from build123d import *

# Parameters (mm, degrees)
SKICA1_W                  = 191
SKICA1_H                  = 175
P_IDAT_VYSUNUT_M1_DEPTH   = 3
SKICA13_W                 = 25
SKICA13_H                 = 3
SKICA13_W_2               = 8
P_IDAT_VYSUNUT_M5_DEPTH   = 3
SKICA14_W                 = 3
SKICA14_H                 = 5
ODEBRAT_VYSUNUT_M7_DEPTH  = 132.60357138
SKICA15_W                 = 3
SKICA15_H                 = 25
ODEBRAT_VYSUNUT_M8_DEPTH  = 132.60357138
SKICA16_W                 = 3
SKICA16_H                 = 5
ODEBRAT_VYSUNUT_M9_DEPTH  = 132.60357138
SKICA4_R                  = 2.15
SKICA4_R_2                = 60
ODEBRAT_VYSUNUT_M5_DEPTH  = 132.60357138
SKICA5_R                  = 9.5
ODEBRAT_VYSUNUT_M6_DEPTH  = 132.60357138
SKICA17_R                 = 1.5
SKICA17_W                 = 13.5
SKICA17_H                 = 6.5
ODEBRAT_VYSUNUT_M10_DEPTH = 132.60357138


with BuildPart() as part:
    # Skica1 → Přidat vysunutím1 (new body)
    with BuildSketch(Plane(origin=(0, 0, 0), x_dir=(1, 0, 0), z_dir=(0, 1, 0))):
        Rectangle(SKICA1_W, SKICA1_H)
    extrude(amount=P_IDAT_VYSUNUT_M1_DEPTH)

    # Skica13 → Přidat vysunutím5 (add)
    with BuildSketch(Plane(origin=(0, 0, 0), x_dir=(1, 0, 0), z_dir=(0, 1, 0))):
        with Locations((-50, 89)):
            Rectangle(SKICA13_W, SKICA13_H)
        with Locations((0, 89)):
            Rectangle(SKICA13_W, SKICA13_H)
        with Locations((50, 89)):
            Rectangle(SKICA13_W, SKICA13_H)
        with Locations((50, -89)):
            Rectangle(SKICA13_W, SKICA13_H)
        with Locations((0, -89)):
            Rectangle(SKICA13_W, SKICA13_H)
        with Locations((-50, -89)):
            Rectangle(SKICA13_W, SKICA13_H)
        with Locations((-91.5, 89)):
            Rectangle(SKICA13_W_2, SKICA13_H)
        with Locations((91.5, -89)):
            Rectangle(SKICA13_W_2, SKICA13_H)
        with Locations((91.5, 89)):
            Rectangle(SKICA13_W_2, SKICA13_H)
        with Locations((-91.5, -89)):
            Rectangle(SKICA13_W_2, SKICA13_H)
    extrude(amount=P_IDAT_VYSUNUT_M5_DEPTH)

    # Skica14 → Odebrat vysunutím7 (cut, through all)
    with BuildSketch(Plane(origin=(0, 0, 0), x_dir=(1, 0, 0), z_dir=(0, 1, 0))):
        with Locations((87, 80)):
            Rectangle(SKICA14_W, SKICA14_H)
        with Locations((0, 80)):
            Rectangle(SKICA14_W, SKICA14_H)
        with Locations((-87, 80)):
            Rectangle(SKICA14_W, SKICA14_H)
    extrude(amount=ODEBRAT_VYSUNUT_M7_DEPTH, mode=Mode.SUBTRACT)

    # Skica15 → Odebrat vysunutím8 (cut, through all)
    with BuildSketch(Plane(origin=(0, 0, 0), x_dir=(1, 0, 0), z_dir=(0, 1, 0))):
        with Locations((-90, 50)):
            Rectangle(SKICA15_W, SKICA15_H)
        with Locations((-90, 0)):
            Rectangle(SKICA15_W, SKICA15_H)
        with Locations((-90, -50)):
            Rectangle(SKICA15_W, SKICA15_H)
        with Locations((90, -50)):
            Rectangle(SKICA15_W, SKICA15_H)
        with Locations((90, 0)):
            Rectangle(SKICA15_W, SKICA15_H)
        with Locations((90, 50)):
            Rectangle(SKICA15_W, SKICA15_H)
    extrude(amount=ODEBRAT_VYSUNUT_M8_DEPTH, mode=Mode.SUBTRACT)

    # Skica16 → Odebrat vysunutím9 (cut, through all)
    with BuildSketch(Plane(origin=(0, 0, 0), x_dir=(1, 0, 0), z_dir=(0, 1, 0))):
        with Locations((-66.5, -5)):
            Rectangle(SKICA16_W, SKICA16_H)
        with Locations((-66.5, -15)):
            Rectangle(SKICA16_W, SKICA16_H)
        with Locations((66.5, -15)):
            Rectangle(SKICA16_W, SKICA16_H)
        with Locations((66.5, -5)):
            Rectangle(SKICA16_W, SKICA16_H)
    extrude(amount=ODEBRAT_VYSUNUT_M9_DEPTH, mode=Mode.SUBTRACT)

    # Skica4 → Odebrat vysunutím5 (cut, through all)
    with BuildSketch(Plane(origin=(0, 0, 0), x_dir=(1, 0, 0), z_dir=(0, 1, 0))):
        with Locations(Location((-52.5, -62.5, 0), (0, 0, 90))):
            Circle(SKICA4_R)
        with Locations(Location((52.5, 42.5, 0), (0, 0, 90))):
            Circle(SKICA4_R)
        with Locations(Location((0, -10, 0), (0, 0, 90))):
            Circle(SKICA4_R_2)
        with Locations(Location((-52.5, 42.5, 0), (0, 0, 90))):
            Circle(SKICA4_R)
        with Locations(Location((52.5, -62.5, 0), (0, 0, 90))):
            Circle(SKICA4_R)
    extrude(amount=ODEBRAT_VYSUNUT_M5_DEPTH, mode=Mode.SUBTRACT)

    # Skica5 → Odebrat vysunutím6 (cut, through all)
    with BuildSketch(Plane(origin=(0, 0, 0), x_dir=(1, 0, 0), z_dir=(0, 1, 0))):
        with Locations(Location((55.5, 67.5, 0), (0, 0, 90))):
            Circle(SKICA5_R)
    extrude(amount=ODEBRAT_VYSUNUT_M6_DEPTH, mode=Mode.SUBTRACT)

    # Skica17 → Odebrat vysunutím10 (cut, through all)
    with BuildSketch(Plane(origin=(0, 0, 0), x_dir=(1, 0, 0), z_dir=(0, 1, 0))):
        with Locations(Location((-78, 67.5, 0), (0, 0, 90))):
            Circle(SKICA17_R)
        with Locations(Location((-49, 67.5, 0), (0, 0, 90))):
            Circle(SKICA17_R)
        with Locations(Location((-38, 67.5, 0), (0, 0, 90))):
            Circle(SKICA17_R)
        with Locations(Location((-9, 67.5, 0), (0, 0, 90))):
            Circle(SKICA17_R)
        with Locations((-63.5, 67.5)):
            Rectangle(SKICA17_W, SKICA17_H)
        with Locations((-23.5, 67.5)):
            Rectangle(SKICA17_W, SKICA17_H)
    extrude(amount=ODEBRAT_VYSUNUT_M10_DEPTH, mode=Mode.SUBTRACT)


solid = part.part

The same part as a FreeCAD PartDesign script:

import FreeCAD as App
import Part
import Sketcher
from FreeCAD import Vector
Q = App.Units.Quantity

doc = App.newDocument("Part")
body = doc.addObject("PartDesign::Body", "Body")

sketch1 = body.newObject("Sketcher::SketchObject", "Sketch")
sketch1.AttachmentSupport = (doc.getObject("XZ_Plane"), [""])
sketch1.MapMode = "FlatFace"
sketch1.addGeometry(Part.LineSegment(Vector(-96, -88, 0), Vector(-96, 88, 0)), False)
sketch1.addGeometry(Part.LineSegment(Vector(-96, 88, 0), Vector(96, 88, 0)), False)
sketch1.addGeometry(Part.LineSegment(Vector(96, 88, 0), Vector(96, -88, 0)), False)
sketch1.addGeometry(Part.LineSegment(Vector(96, -88, 0), Vector(-96, -88, 0)), False)
sketch1.addConstraint(Sketcher.Constraint("Coincident", 0, 2, 1, 1))
sketch1.addConstraint(Sketcher.Constraint("Coincident", 1, 2, 2, 1))
sketch1.addConstraint(Sketcher.Constraint("Coincident", 2, 2, 3, 1))
sketch1.addConstraint(Sketcher.Constraint("Coincident", 3, 2, 0, 1))
sketch1.addConstraint(Sketcher.Constraint("Vertical", 0))
sketch1.addConstraint(Sketcher.Constraint("Horizontal", 1))
sketch1.addConstraint(Sketcher.Constraint("Vertical", 2))
sketch1.addConstraint(Sketcher.Constraint("Horizontal", 3))
sketch1.addConstraint(Sketcher.Constraint("Symmetric", 0, 2, 2, 2, -1, 1))
sketch1.addConstraint(Sketcher.Constraint("DistanceX", 1, 1, 1, 2, Q("191 mm")))
sketch1.addConstraint(Sketcher.Constraint("DistanceY", 0, 1, 0, 2, Q("175 mm")))
pad1 = body.newObject("PartDesign::Pad", "Pad")
pad1.Profile = sketch1
pad1.Length = 3
pad1.Reversed = True

sketch2 = body.newObject("Sketcher::SketchObject", "Sketch001")
sketch2.AttachmentSupport = (doc.getObject("XZ_Plane"), [""])
sketch2.MapMode = "FlatFace"
sketch2.addGeometry(Part.LineSegment(Vector(-62.5, -90.5, 0), Vector(-62.5, -87.5, 0)), False)
sketch2.addGeometry(Part.LineSegment(Vector(-62.5, -87.5, 0), Vector(-37.5, -87.5, 0)), False)
sketch2.addGeometry(Part.LineSegment(Vector(-37.5, -87.5, 0), Vector(-37.5, -90.5, 0)), False)
sketch2.addGeometry(Part.LineSegment(Vector(-37.5, -90.5, 0), Vector(-62.5, -90.5, 0)), False)
sketch2.addGeometry(Part.LineSegment(Vector(-12.5, -90.5, 0), Vector(-12.5, -87.5, 0)), False)
sketch2.addGeometry(Part.LineSegment(Vector(-12.5, -87.5, 0), Vector(12.5, -87.5, 0)), False)
sketch2.addGeometry(Part.LineSegment(Vector(12.5, -87.5, 0), Vector(12.5, -90.5, 0)), False)
sketch2.addGeometry(Part.LineSegment(Vector(12.5, -90.5, 0), Vector(-12.5, -90.5, 0)), False)
sketch2.addGeometry(Part.LineSegment(Vector(37.5, -90.5, 0), Vector(37.5, -87.5, 0)), False)
sketch2.addGeometry(Part.LineSegment(Vector(37.5, -87.5, 0), Vector(62.5, -87.5, 0)), False)
sketch2.addGeometry(Part.LineSegment(Vector(62.5, -87.5, 0), Vector(62.5, -90.5, 0)), False)
sketch2.addGeometry(Part.LineSegment(Vector(62.5, -90.5, 0), Vector(37.5, -90.5, 0)), False)
sketch2.addGeometry(Part.LineSegment(Vector(37.5, 87.5, 0), Vector(37.5, 90.5, 0)), False)
sketch2.addGeometry(Part.LineSegment(Vector(37.5, 90.5, 0), Vector(62.5, 90.5, 0)), False)
sketch2.addGeometry(Part.LineSegment(Vector(62.5, 90.5, 0), Vector(62.5, 87.5, 0)), False)
sketch2.addGeometry(Part.LineSegment(Vector(62.5, 87.5, 0), Vector(37.5, 87.5, 0)), False)
sketch2.addGeometry(Part.LineSegment(Vector(-12.5, 87.5, 0), Vector(-12.5, 90.5, 0)), False)
sketch2.addGeometry(Part.LineSegment(Vector(-12.5, 90.5, 0), Vector(12.5, 90.5, 0)), False)
sketch2.addGeometry(Part.LineSegment(Vector(12.5, 90.5, 0), Vector(12.5, 87.5, 0)), False)
sketch2.addGeometry(Part.LineSegment(Vector(12.5, 87.5, 0), Vector(-12.5, 87.5, 0)), False)
sketch2.addGeometry(Part.LineSegment(Vector(-62.5, 87.5, 0), Vector(-62.5, 90.5, 0)), False)
sketch2.addGeometry(Part.LineSegment(Vector(-62.5, 90.5, 0), Vector(-37.5, 90.5, 0)), False)
sketch2.addGeometry(Part.LineSegment(Vector(-37.5, 90.5, 0), Vector(-37.5, 87.5, 0)), False)
sketch2.addGeometry(Part.LineSegment(Vector(-37.5, 87.5, 0), Vector(-62.5, 87.5, 0)), False)
sketch2.addGeometry(Part.LineSegment(Vector(-95.5, -90.5, 0), Vector(-95.5, -87.5, 0)), False)
sketch2.addGeometry(Part.LineSegment(Vector(-95.5, -87.5, 0), Vector(-87.5, -87.5, 0)), False)
sketch2.addGeometry(Part.LineSegment(Vector(-87.5, -87.5, 0), Vector(-87.5, -90.5, 0)), False)
sketch2.addGeometry(Part.LineSegment(Vector(-87.5, -90.5, 0), Vector(-95.5, -90.5, 0)), False)
sketch2.addGeometry(Part.LineSegment(Vector(87.5, 87.5, 0), Vector(87.5, 90.5, 0)), False)
sketch2.addGeometry(Part.LineSegment(Vector(87.5, 90.5, 0), Vector(95.5, 90.5, 0)), False)
sketch2.addGeometry(Part.LineSegment(Vector(95.5, 90.5, 0), Vector(95.5, 87.5, 0)), False)
sketch2.addGeometry(Part.LineSegment(Vector(95.5, 87.5, 0), Vector(87.5, 87.5, 0)), False)
sketch2.addGeometry(Part.LineSegment(Vector(87.5, -90.5, 0), Vector(87.5, -87.5, 0)), False)
sketch2.addGeometry(Part.LineSegment(Vector(87.5, -87.5, 0), Vector(95.5, -87.5, 0)), False)
sketch2.addGeometry(Part.LineSegment(Vector(95.5, -87.5, 0), Vector(95.5, -90.5, 0)), False)
sketch2.addGeometry(Part.LineSegment(Vector(95.5, -90.5, 0), Vector(87.5, -90.5, 0)), False)
sketch2.addGeometry(Part.LineSegment(Vector(-95.5, 87.5, 0), Vector(-95.5, 90.5, 0)), False)
sketch2.addGeometry(Part.LineSegment(Vector(-95.5, 90.5, 0), Vector(-87.5, 90.5, 0)), False)
sketch2.addGeometry(Part.LineSegment(Vector(-87.5, 90.5, 0), Vector(-87.5, 87.5, 0)), False)
sketch2.addGeometry(Part.LineSegment(Vector(-87.5, 87.5, 0), Vector(-95.5, 87.5, 0)), False)
sketch2.addConstraint(Sketcher.Constraint("Coincident", 0, 2, 1, 1))
sketch2.addConstraint(Sketcher.Constraint("Coincident", 1, 2, 2, 1))
sketch2.addConstraint(Sketcher.Constraint("Coincident", 2, 2, 3, 1))
sketch2.addConstraint(Sketcher.Constraint("Coincident", 3, 2, 0, 1))
sketch2.addConstraint(Sketcher.Constraint("Coincident", 4, 2, 5, 1))
sketch2.addConstraint(Sketcher.Constraint("Coincident", 5, 2, 6, 1))
sketch2.addConstraint(Sketcher.Constraint("Coincident", 6, 2, 7, 1))
sketch2.addConstraint(Sketcher.Constraint("Coincident", 7, 2, 4, 1))
sketch2.addConstraint(Sketcher.Constraint("Coincident", 8, 2, 9, 1))
sketch2.addConstraint(Sketcher.Constraint("Coincident", 9, 2, 10, 1))
sketch2.addConstraint(Sketcher.Constraint("Coincident", 10, 2, 11, 1))
sketch2.addConstraint(Sketcher.Constraint("Coincident", 11, 2, 8, 1))
sketch2.addConstraint(Sketcher.Constraint("Coincident", 12, 2, 13, 1))
sketch2.addConstraint(Sketcher.Constraint("Coincident", 13, 2, 14, 1))
sketch2.addConstraint(Sketcher.Constraint("Coincident", 14, 2, 15, 1))
sketch2.addConstraint(Sketcher.Constraint("Coincident", 15, 2, 12, 1))
sketch2.addConstraint(Sketcher.Constraint("Coincident", 16, 2, 17, 1))
sketch2.addConstraint(Sketcher.Constraint("Coincident", 17, 2, 18, 1))
sketch2.addConstraint(Sketcher.Constraint("Coincident", 18, 2, 19, 1))
sketch2.addConstraint(Sketcher.Constraint("Coincident", 19, 2, 16, 1))
sketch2.addConstraint(Sketcher.Constraint("Coincident", 20, 2, 21, 1))
sketch2.addConstraint(Sketcher.Constraint("Coincident", 21, 2, 22, 1))
sketch2.addConstraint(Sketcher.Constraint("Coincident", 22, 2, 23, 1))
sketch2.addConstraint(Sketcher.Constraint("Coincident", 23, 2, 20, 1))
sketch2.addConstraint(Sketcher.Constraint("Coincident", 24, 2, 25, 1))
sketch2.addConstraint(Sketcher.Constraint("Coincident", 25, 2, 26, 1))
sketch2.addConstraint(Sketcher.Constraint("Coincident", 26, 2, 27, 1))
sketch2.addConstraint(Sketcher.Constraint("Coincident", 27, 2, 24, 1))
sketch2.addConstraint(Sketcher.Constraint("Coincident", 28, 2, 29, 1))
sketch2.addConstraint(Sketcher.Constraint("Coincident", 29, 2, 30, 1))
sketch2.addConstraint(Sketcher.Constraint("Coincident", 30, 2, 31, 1))
sketch2.addConstraint(Sketcher.Constraint("Coincident", 31, 2, 28, 1))
sketch2.addConstraint(Sketcher.Constraint("Coincident", 32, 2, 33, 1))
sketch2.addConstraint(Sketcher.Constraint("Coincident", 33, 2, 34, 1))
sketch2.addConstraint(Sketcher.Constraint("Coincident", 34, 2, 35, 1))
sketch2.addConstraint(Sketcher.Constraint("Coincident", 35, 2, 32, 1))
sketch2.addConstraint(Sketcher.Constraint("Coincident", 36, 2, 37, 1))
sketch2.addConstraint(Sketcher.Constraint("Coincident", 37, 2, 38, 1))
sketch2.addConstraint(Sketcher.Constraint("Coincident", 38, 2, 39, 1))
sketch2.addConstraint(Sketcher.Constraint("Coincident", 39, 2, 36, 1))
sketch2.addConstraint(Sketcher.Constraint("Vertical", 0))
sketch2.addConstraint(Sketcher.Constraint("Horizontal", 1))
sketch2.addConstraint(Sketcher.Constraint("Vertical", 2))
sketch2.addConstraint(Sketcher.Constraint("Horizontal", 3))
sketch2.addConstraint(Sketcher.Constraint("Vertical", 4))
sketch2.addConstraint(Sketcher.Constraint("Horizontal", 5))
sketch2.addConstraint(Sketcher.Constraint("Vertical", 6))
sketch2.addConstraint(Sketcher.Constraint("Horizontal", 7))
sketch2.addConstraint(Sketcher.Constraint("Vertical", 8))
sketch2.addConstraint(Sketcher.Constraint("Horizontal", 9))
sketch2.addConstraint(Sketcher.Constraint("Vertical", 10))
sketch2.addConstraint(Sketcher.Constraint("Horizontal", 11))
sketch2.addConstraint(Sketcher.Constraint("Vertical", 12))
sketch2.addConstraint(Sketcher.Constraint("Horizontal", 13))
sketch2.addConstraint(Sketcher.Constraint("Vertical", 14))
sketch2.addConstraint(Sketcher.Constraint("Horizontal", 15))
sketch2.addConstraint(Sketcher.Constraint("Vertical", 16))
sketch2.addConstraint(Sketcher.Constraint("Horizontal", 17))
sketch2.addConstraint(Sketcher.Constraint("Vertical", 18))
sketch2.addConstraint(Sketcher.Constraint("Horizontal", 19))
sketch2.addConstraint(Sketcher.Constraint("Vertical", 20))
sketch2.addConstraint(Sketcher.Constraint("Horizontal", 21))
sketch2.addConstraint(Sketcher.Constraint("Vertical", 22))
sketch2.addConstraint(Sketcher.Constraint("Horizontal", 23))
sketch2.addConstraint(Sketcher.Constraint("Vertical", 24))
sketch2.addConstraint(Sketcher.Constraint("Horizontal", 25))
sketch2.addConstraint(Sketcher.Constraint("Vertical", 26))
sketch2.addConstraint(Sketcher.Constraint("Horizontal", 27))
sketch2.addConstraint(Sketcher.Constraint("Vertical", 28))
sketch2.addConstraint(Sketcher.Constraint("Horizontal", 29))
sketch2.addConstraint(Sketcher.Constraint("Vertical", 30))
sketch2.addConstraint(Sketcher.Constraint("Horizontal", 31))
sketch2.addConstraint(Sketcher.Constraint("Vertical", 32))
sketch2.addConstraint(Sketcher.Constraint("Horizontal", 33))
sketch2.addConstraint(Sketcher.Constraint("Vertical", 34))
sketch2.addConstraint(Sketcher.Constraint("Horizontal", 35))
sketch2.addConstraint(Sketcher.Constraint("Vertical", 36))
sketch2.addConstraint(Sketcher.Constraint("Horizontal", 37))
sketch2.addConstraint(Sketcher.Constraint("Vertical", 38))
sketch2.addConstraint(Sketcher.Constraint("Horizontal", 39))
sketch2.addConstraint(Sketcher.Constraint("Symmetric", 2, 2, 12, 2, -1, 1))
sketch2.addConstraint(Sketcher.Constraint("Symmetric", 0, 2, 14, 2, -1, 1))
sketch2.addConstraint(Sketcher.Constraint("Symmetric", 6, 2, 16, 2, -1, 1))
sketch2.addConstraint(Sketcher.Constraint("Symmetric", 4, 2, 18, 2, -1, 1))
sketch2.addConstraint(Sketcher.Constraint("Symmetric", 10, 2, 20, 2, -1, 1))
sketch2.addConstraint(Sketcher.Constraint("Symmetric", 8, 2, 22, 2, -1, 1))
sketch2.addConstraint(Sketcher.Constraint("Symmetric", 26, 2, 28, 2, -1, 1))
sketch2.addConstraint(Sketcher.Constraint("Symmetric", 24, 2, 30, 2, -1, 1))
sketch2.addConstraint(Sketcher.Constraint("Symmetric", 34, 2, 36, 2, -1, 1))
sketch2.addConstraint(Sketcher.Constraint("Symmetric", 32, 2, 38, 2, -1, 1))
sketch2.addConstraint(Sketcher.Constraint("Symmetric", 1, 2, 8, 2, -2))
sketch2.addConstraint(Sketcher.Constraint("Symmetric", 3, 2, 10, 2, -2))
sketch2.addConstraint(Sketcher.Constraint("Symmetric", 25, 2, 32, 2, -2))
sketch2.addConstraint(Sketcher.Constraint("Symmetric", 27, 2, 34, 2, -2))
sketch2.addConstraint(Sketcher.Constraint("Horizontal", 1, 2, 4, 2))
sketch2.addConstraint(Sketcher.Constraint("Horizontal", 3, 2, 6, 2))
sketch2.addConstraint(Sketcher.Constraint("Horizontal", 9, 2, 24, 2))
sketch2.addConstraint(Sketcher.Constraint("Horizontal", 11, 2, 26, 2))
sketch2.addConstraint(Sketcher.Constraint("Vertical", 7, 2, 16, 2))
sketch2.addConstraint(Sketcher.Constraint("Equal", 3, 5))
sketch2.addConstraint(Sketcher.Constraint("DistanceX", 1, 1, 1, 2, Q("25 mm")))
sketch2.addConstraint(Sketcher.Constraint("DistanceX", 25, 1, 25, 2, Q("8 mm")))
sketch2.addConstraint(Sketcher.Constraint("DistanceY", 0, 1, 0, 2, Q("3 mm")))
sketch2.addConstraint(Sketcher.Constraint("DistanceX", 1, 2, 4, 2, Q("25 mm")))
sketch2.addConstraint(Sketcher.Constraint("DistanceY", 8, 2, 12, 2, Q("178 mm")))
sketch2.addConstraint(Sketcher.Constraint("DistanceX", 24, 2, 0, 2, Q("33 mm")))
pad2 = body.newObject("PartDesign::Pad", "Pad001")
pad2.Profile = sketch2
pad2.Length = 3
pad2.Reversed = True

sketch3 = body.newObject("Sketcher::SketchObject", "Sketch002")
sketch3.AttachmentSupport = (doc.getObject("XZ_Plane"), [""])
sketch3.MapMode = "FlatFace"
sketch3.addGeometry(Part.LineSegment(Vector(85.5, -82.5, 0), Vector(85.5, -77.5, 0)), False)
sketch3.addGeometry(Part.LineSegment(Vector(85.5, -77.5, 0), Vector(88.5, -77.5, 0)), False)
sketch3.addGeometry(Part.LineSegment(Vector(88.5, -77.5, 0), Vector(88.5, -82.5, 0)), False)
sketch3.addGeometry(Part.LineSegment(Vector(88.5, -82.5, 0), Vector(85.5, -82.5, 0)), False)
sketch3.addGeometry(Part.LineSegment(Vector(-1.5, -82.5, 0), Vector(-1.5, -77.5, 0)), False)
sketch3.addGeometry(Part.LineSegment(Vector(-1.5, -77.5, 0), Vector(1.5, -77.5, 0)), False)
sketch3.addGeometry(Part.LineSegment(Vector(1.5, -77.5, 0), Vector(1.5, -82.5, 0)), False)
sketch3.addGeometry(Part.LineSegment(Vector(1.5, -82.5, 0), Vector(-1.5, -82.5, 0)), False)
sketch3.addGeometry(Part.LineSegment(Vector(-88.5, -82.5, 0), Vector(-88.5, -77.5, 0)), False)
sketch3.addGeometry(Part.LineSegment(Vector(-88.5, -77.5, 0), Vector(-85.5, -77.5, 0)), False)
sketch3.addGeometry(Part.LineSegment(Vector(-85.5, -77.5, 0), Vector(-85.5, -82.5, 0)), False)
sketch3.addGeometry(Part.LineSegment(Vector(-85.5, -82.5, 0), Vector(-88.5, -82.5, 0)), False)
sketch3.addConstraint(Sketcher.Constraint("Coincident", 0, 2, 1, 1))
sketch3.addConstraint(Sketcher.Constraint("Coincident", 1, 2, 2, 1))
sketch3.addConstraint(Sketcher.Constraint("Coincident", 2, 2, 3, 1))
sketch3.addConstraint(Sketcher.Constraint("Coincident", 3, 2, 0, 1))
sketch3.addConstraint(Sketcher.Constraint("Coincident", 4, 2, 5, 1))
sketch3.addConstraint(Sketcher.Constraint("Coincident", 5, 2, 6, 1))
sketch3.addConstraint(Sketcher.Constraint("Coincident", 6, 2, 7, 1))
sketch3.addConstraint(Sketcher.Constraint("Coincident", 7, 2, 4, 1))
sketch3.addConstraint(Sketcher.Constraint("Coincident", 8, 2, 9, 1))
sketch3.addConstraint(Sketcher.Constraint("Coincident", 9, 2, 10, 1))
sketch3.addConstraint(Sketcher.Constraint("Coincident", 10, 2, 11, 1))
sketch3.addConstraint(Sketcher.Constraint("Coincident", 11, 2, 8, 1))
sketch3.addConstraint(Sketcher.Constraint("Vertical", 0))
sketch3.addConstraint(Sketcher.Constraint("Horizontal", 1))
sketch3.addConstraint(Sketcher.Constraint("Vertical", 2))
sketch3.addConstraint(Sketcher.Constraint("Horizontal", 3))
sketch3.addConstraint(Sketcher.Constraint("Vertical", 4))
sketch3.addConstraint(Sketcher.Constraint("Horizontal", 5))
sketch3.addConstraint(Sketcher.Constraint("Vertical", 6))
sketch3.addConstraint(Sketcher.Constraint("Horizontal", 7))
sketch3.addConstraint(Sketcher.Constraint("Vertical", 8))
sketch3.addConstraint(Sketcher.Constraint("Horizontal", 9))
sketch3.addConstraint(Sketcher.Constraint("Vertical", 10))
sketch3.addConstraint(Sketcher.Constraint("Horizontal", 11))
sketch3.addConstraint(Sketcher.Constraint("Symmetric", 1, 2, 8, 2, -2))
sketch3.addConstraint(Sketcher.Constraint("Symmetric", 3, 2, 10, 2, -2))
sketch3.addConstraint(Sketcher.Constraint("Horizontal", 1, 2, 4, 2))
sketch3.addConstraint(Sketcher.Constraint("Horizontal", 3, 2, 6, 2))
sketch3.addConstraint(Sketcher.Constraint("Equal", 3, 5))
sketch3.addConstraint(Sketcher.Constraint("DistanceX", 1, 1, 1, 2, Q("3 mm")))
sketch3.addConstraint(Sketcher.Constraint("DistanceY", 0, 1, 0, 2, Q("5 mm")))
sketch3.addConstraint(Sketcher.Constraint("DistanceX", 4, 2, 0, 2, Q("87 mm")))
sketch3.addConstraint(Sketcher.Constraint("DistanceX", 8, 2, 4, 2, Q("87 mm")))
sketch3.addConstraint(Sketcher.Constraint("DistanceY", 0, 2, -1, 1, Q("77.5 mm")))
pocket1 = body.newObject("PartDesign::Pocket", "Pocket")
pocket1.Profile = sketch3
pocket1.Type = "ThroughAll"

sketch4 = body.newObject("Sketcher::SketchObject", "Sketch003")
sketch4.AttachmentSupport = (doc.getObject("XZ_Plane"), [""])
sketch4.MapMode = "FlatFace"
sketch4.addGeometry(Part.LineSegment(Vector(-91.5, -62.5, 0), Vector(-91.5, -37.5, 0)), False)
sketch4.addGeometry(Part.LineSegment(Vector(-91.5, -37.5, 0), Vector(-88.5, -37.5, 0)), False)
sketch4.addGeometry(Part.LineSegment(Vector(-88.5, -37.5, 0), Vector(-88.5, -62.5, 0)), False)
sketch4.addGeometry(Part.LineSegment(Vector(-88.5, -62.5, 0), Vector(-91.5, -62.5, 0)), False)
sketch4.addGeometry(Part.LineSegment(Vector(-91.5, -12.5, 0), Vector(-91.5, 12.5, 0)), False)
sketch4.addGeometry(Part.LineSegment(Vector(-91.5, 12.5, 0), Vector(-88.5, 12.5, 0)), False)
sketch4.addGeometry(Part.LineSegment(Vector(-88.5, 12.5, 0), Vector(-88.5, -12.5, 0)), False)
sketch4.addGeometry(Part.LineSegment(Vector(-88.5, -12.5, 0), Vector(-91.5, -12.5, 0)), False)
sketch4.addGeometry(Part.LineSegment(Vector(-91.5, 37.5, 0), Vector(-91.5, 62.5, 0)), False)
sketch4.addGeometry(Part.LineSegment(Vector(-91.5, 62.5, 0), Vector(-88.5, 62.5, 0)), False)
sketch4.addGeometry(Part.LineSegment(Vector(-88.5, 62.5, 0), Vector(-88.5, 37.5, 0)), False)
sketch4.addGeometry(Part.LineSegment(Vector(-88.5, 37.5, 0), Vector(-91.5, 37.5, 0)), False)
sketch4.addGeometry(Part.LineSegment(Vector(88.5, 37.5, 0), Vector(88.5, 62.5, 0)), False)
sketch4.addGeometry(Part.LineSegment(Vector(88.5, 62.5, 0), Vector(91.5, 62.5, 0)), False)
sketch4.addGeometry(Part.LineSegment(Vector(91.5, 62.5, 0), Vector(91.5, 37.5, 0)), False)
sketch4.addGeometry(Part.LineSegment(Vector(91.5, 37.5, 0), Vector(88.5, 37.5, 0)), False)
sketch4.addGeometry(Part.LineSegment(Vector(88.5, -12.5, 0), Vector(88.5, 12.5, 0)), False)
sketch4.addGeometry(Part.LineSegment(Vector(88.5, 12.5, 0), Vector(91.5, 12.5, 0)), False)
sketch4.addGeometry(Part.LineSegment(Vector(91.5, 12.5, 0), Vector(91.5, -12.5, 0)), False)
sketch4.addGeometry(Part.LineSegment(Vector(91.5, -12.5, 0), Vector(88.5, -12.5, 0)), False)
sketch4.addGeometry(Part.LineSegment(Vector(88.5, -62.5, 0), Vector(88.5, -37.5, 0)), False)
sketch4.addGeometry(Part.LineSegment(Vector(88.5, -37.5, 0), Vector(91.5, -37.5, 0)), False)
sketch4.addGeometry(Part.LineSegment(Vector(91.5, -37.5, 0), Vector(91.5, -62.5, 0)), False)
sketch4.addGeometry(Part.LineSegment(Vector(91.5, -62.5, 0), Vector(88.5, -62.5, 0)), False)
sketch4.addConstraint(Sketcher.Constraint("Coincident", 0, 2, 1, 1))
sketch4.addConstraint(Sketcher.Constraint("Coincident", 1, 2, 2, 1))
sketch4.addConstraint(Sketcher.Constraint("Coincident", 2, 2, 3, 1))
sketch4.addConstraint(Sketcher.Constraint("Coincident", 3, 2, 0, 1))
sketch4.addConstraint(Sketcher.Constraint("Coincident", 4, 2, 5, 1))
sketch4.addConstraint(Sketcher.Constraint("Coincident", 5, 2, 6, 1))
sketch4.addConstraint(Sketcher.Constraint("Coincident", 6, 2, 7, 1))
sketch4.addConstraint(Sketcher.Constraint("Coincident", 7, 2, 4, 1))
sketch4.addConstraint(Sketcher.Constraint("Coincident", 8, 2, 9, 1))
sketch4.addConstraint(Sketcher.Constraint("Coincident", 9, 2, 10, 1))
sketch4.addConstraint(Sketcher.Constraint("Coincident", 10, 2, 11, 1))
sketch4.addConstraint(Sketcher.Constraint("Coincident", 11, 2, 8, 1))
sketch4.addConstraint(Sketcher.Constraint("Coincident", 12, 2, 13, 1))
sketch4.addConstraint(Sketcher.Constraint("Coincident", 13, 2, 14, 1))
sketch4.addConstraint(Sketcher.Constraint("Coincident", 14, 2, 15, 1))
sketch4.addConstraint(Sketcher.Constraint("Coincident", 15, 2, 12, 1))
sketch4.addConstraint(Sketcher.Constraint("Coincident", 16, 2, 17, 1))
sketch4.addConstraint(Sketcher.Constraint("Coincident", 17, 2, 18, 1))
sketch4.addConstraint(Sketcher.Constraint("Coincident", 18, 2, 19, 1))
sketch4.addConstraint(Sketcher.Constraint("Coincident", 19, 2, 16, 1))
sketch4.addConstraint(Sketcher.Constraint("Coincident", 20, 2, 21, 1))
sketch4.addConstraint(Sketcher.Constraint("Coincident", 21, 2, 22, 1))
sketch4.addConstraint(Sketcher.Constraint("Coincident", 22, 2, 23, 1))
sketch4.addConstraint(Sketcher.Constraint("Coincident", 23, 2, 20, 1))
sketch4.addConstraint(Sketcher.Constraint("Vertical", 0))
sketch4.addConstraint(Sketcher.Constraint("Horizontal", 1))
sketch4.addConstraint(Sketcher.Constraint("Vertical", 2))
sketch4.addConstraint(Sketcher.Constraint("Horizontal", 3))
sketch4.addConstraint(Sketcher.Constraint("Vertical", 4))
sketch4.addConstraint(Sketcher.Constraint("Horizontal", 5))
sketch4.addConstraint(Sketcher.Constraint("Vertical", 6))
sketch4.addConstraint(Sketcher.Constraint("Horizontal", 7))
sketch4.addConstraint(Sketcher.Constraint("Vertical", 8))
sketch4.addConstraint(Sketcher.Constraint("Horizontal", 9))
sketch4.addConstraint(Sketcher.Constraint("Vertical", 10))
sketch4.addConstraint(Sketcher.Constraint("Horizontal", 11))
sketch4.addConstraint(Sketcher.Constraint("Vertical", 12))
sketch4.addConstraint(Sketcher.Constraint("Horizontal", 13))
sketch4.addConstraint(Sketcher.Constraint("Vertical", 14))
sketch4.addConstraint(Sketcher.Constraint("Horizontal", 15))
sketch4.addConstraint(Sketcher.Constraint("Vertical", 16))
sketch4.addConstraint(Sketcher.Constraint("Horizontal", 17))
sketch4.addConstraint(Sketcher.Constraint("Vertical", 18))
sketch4.addConstraint(Sketcher.Constraint("Horizontal", 19))
sketch4.addConstraint(Sketcher.Constraint("Vertical", 20))
sketch4.addConstraint(Sketcher.Constraint("Horizontal", 21))
sketch4.addConstraint(Sketcher.Constraint("Vertical", 22))
sketch4.addConstraint(Sketcher.Constraint("Horizontal", 23))
sketch4.addConstraint(Sketcher.Constraint("Symmetric", 2, 2, 12, 2, -1, 1))
sketch4.addConstraint(Sketcher.Constraint("Symmetric", 0, 2, 14, 2, -1, 1))
sketch4.addConstraint(Sketcher.Constraint("Symmetric", 6, 2, 16, 2, -1, 1))
sketch4.addConstraint(Sketcher.Constraint("Symmetric", 4, 2, 18, 2, -1, 1))
sketch4.addConstraint(Sketcher.Constraint("Symmetric", 10, 2, 20, 2, -1, 1))
sketch4.addConstraint(Sketcher.Constraint("Symmetric", 8, 2, 22, 2, -1, 1))
sketch4.addConstraint(Sketcher.Constraint("Symmetric", 9, 2, 12, 2, -2))
sketch4.addConstraint(Sketcher.Constraint("Symmetric", 11, 2, 14, 2, -2))
sketch4.addConstraint(Sketcher.Constraint("Horizontal", 5, 2, 16, 2))
sketch4.addConstraint(Sketcher.Constraint("Vertical", 3, 2, 4, 2))
sketch4.addConstraint(Sketcher.Constraint("Vertical", 2, 2, 5, 2))
sketch4.addConstraint(Sketcher.Constraint("Equal", 2, 4))
sketch4.addConstraint(Sketcher.Constraint("DistanceX", 1, 1, 1, 2, Q("3 mm")))
sketch4.addConstraint(Sketcher.Constraint("DistanceY", 0, 1, 0, 2, Q("25 mm")))
sketch4.addConstraint(Sketcher.Constraint("DistanceY", 0, 2, 4, 2, Q("50 mm")))
sketch4.addConstraint(Sketcher.Constraint("DistanceX", 9, 2, 12, 2, Q("177 mm")))
pocket2 = body.newObject("PartDesign::Pocket", "Pocket001")
pocket2.Profile = sketch4
pocket2.Type = "ThroughAll"

sketch5 = body.newObject("Sketcher::SketchObject", "Sketch004")
sketch5.AttachmentSupport = (doc.getObject("XZ_Plane"), [""])
sketch5.MapMode = "FlatFace"
sketch5.addGeometry(Part.LineSegment(Vector(-68, 2.5, 0), Vector(-68, 7.5, 0)), False)
sketch5.addGeometry(Part.LineSegment(Vector(-68, 7.5, 0), Vector(-65, 7.5, 0)), False)
sketch5.addGeometry(Part.LineSegment(Vector(-65, 7.5, 0), Vector(-65, 2.5, 0)), False)
sketch5.addGeometry(Part.LineSegment(Vector(-65, 2.5, 0), Vector(-68, 2.5, 0)), False)
sketch5.addGeometry(Part.LineSegment(Vector(-68, 12.5, 0), Vector(-68, 17.5, 0)), False)
sketch5.addGeometry(Part.LineSegment(Vector(-68, 17.5, 0), Vector(-65, 17.5, 0)), False)
sketch5.addGeometry(Part.LineSegment(Vector(-65, 17.5, 0), Vector(-65, 12.5, 0)), False)
sketch5.addGeometry(Part.LineSegment(Vector(-65, 12.5, 0), Vector(-68, 12.5, 0)), False)
sketch5.addGeometry(Part.LineSegment(Vector(65, 12.5, 0), Vector(65, 17.5, 0)), False)
sketch5.addGeometry(Part.LineSegment(Vector(65, 17.5, 0), Vector(68, 17.5, 0)), False)
sketch5.addGeometry(Part.LineSegment(Vector(68, 17.5, 0), Vector(68, 12.5, 0)), False)
sketch5.addGeometry(Part.LineSegment(Vector(68, 12.5, 0), Vector(65, 12.5, 0)), False)
sketch5.addGeometry(Part.LineSegment(Vector(65, 2.5, 0), Vector(65, 7.5, 0)), False)
sketch5.addGeometry(Part.LineSegment(Vector(65, 7.5, 0), Vector(68, 7.5, 0)), False)
sketch5.addGeometry(Part.LineSegment(Vector(68, 7.5, 0), Vector(68, 2.5, 0)), False)
sketch5.addGeometry(Part.LineSegment(Vector(68, 2.5, 0), Vector(65, 2.5, 0)), False)
sketch5.addConstraint(Sketcher.Constraint("Coincident", 0, 2, 1, 1))
sketch5.addConstraint(Sketcher.Constraint("Coincident", 1, 2, 2, 1))
sketch5.addConstraint(Sketcher.Constraint("Coincident", 2, 2, 3, 1))
sketch5.addConstraint(Sketcher.Constraint("Coincident", 3, 2, 0, 1))
sketch5.addConstraint(Sketcher.Constraint("Coincident", 4, 2, 5, 1))
sketch5.addConstraint(Sketcher.Constraint("Coincident", 5, 2, 6, 1))
sketch5.addConstraint(Sketcher.Constraint("Coincident", 6, 2, 7, 1))
sketch5.addConstraint(Sketcher.Constraint("Coincident", 7, 2, 4, 1))
sketch5.addConstraint(Sketcher.Constraint("Coincident", 8, 2, 9, 1))
sketch5.addConstraint(Sketcher.Constraint("Coincident", 9, 2, 10, 1))
sketch5.addConstraint(Sketcher.Constraint("Coincident", 10, 2, 11, 1))
sketch5.addConstraint(Sketcher.Constraint("Coincident", 11, 2, 8, 1))
sketch5.addConstraint(Sketcher.Constraint("Coincident", 12, 2, 13, 1))
sketch5.addConstraint(Sketcher.Constraint("Coincident", 13, 2, 14, 1))
sketch5.addConstraint(Sketcher.Constraint("Coincident", 14, 2, 15, 1))
sketch5.addConstraint(Sketcher.Constraint("Coincident", 15, 2, 12, 1))
sketch5.addConstraint(Sketcher.Constraint("Vertical", 0))
sketch5.addConstraint(Sketcher.Constraint("Horizontal", 1))
sketch5.addConstraint(Sketcher.Constraint("Vertical", 2))
sketch5.addConstraint(Sketcher.Constraint("Horizontal", 3))
sketch5.addConstraint(Sketcher.Constraint("Vertical", 4))
sketch5.addConstraint(Sketcher.Constraint("Horizontal", 5))
sketch5.addConstraint(Sketcher.Constraint("Vertical", 6))
sketch5.addConstraint(Sketcher.Constraint("Horizontal", 7))
sketch5.addConstraint(Sketcher.Constraint("Vertical", 8))
sketch5.addConstraint(Sketcher.Constraint("Horizontal", 9))
sketch5.addConstraint(Sketcher.Constraint("Vertical", 10))
sketch5.addConstraint(Sketcher.Constraint("Horizontal", 11))
sketch5.addConstraint(Sketcher.Constraint("Vertical", 12))
sketch5.addConstraint(Sketcher.Constraint("Horizontal", 13))
sketch5.addConstraint(Sketcher.Constraint("Vertical", 14))
sketch5.addConstraint(Sketcher.Constraint("Horizontal", 15))
sketch5.addConstraint(Sketcher.Constraint("Symmetric", 5, 2, 8, 2, -2))
sketch5.addConstraint(Sketcher.Constraint("Symmetric", 7, 2, 10, 2, -2))
sketch5.addConstraint(Sketcher.Constraint("Symmetric", 1, 2, 12, 2, -2))
sketch5.addConstraint(Sketcher.Constraint("Symmetric", 3, 2, 14, 2, -2))
sketch5.addConstraint(Sketcher.Constraint("Vertical", 3, 2, 4, 2))
sketch5.addConstraint(Sketcher.Constraint("Vertical", 2, 2, 5, 2))
sketch5.addConstraint(Sketcher.Constraint("Equal", 2, 4))
sketch5.addConstraint(Sketcher.Constraint("DistanceX", 1, 1, 1, 2, Q("3 mm")))
sketch5.addConstraint(Sketcher.Constraint("DistanceY", 0, 1, 0, 2, Q("5 mm")))
sketch5.addConstraint(Sketcher.Constraint("DistanceX", 0, 2, -1, 1, Q("68 mm")))
sketch5.addConstraint(Sketcher.Constraint("DistanceY", 0, 2, 4, 2, Q("10 mm")))
sketch5.addConstraint(Sketcher.Constraint("DistanceY", -1, 1, 0, 2, Q("7.5 mm")))
pocket3 = body.newObject("PartDesign::Pocket", "Pocket002")
pocket3.Profile = sketch5
pocket3.Type = "ThroughAll"

sketch6 = body.newObject("Sketcher::SketchObject", "Sketch005")
sketch6.AttachmentSupport = (doc.getObject("XZ_Plane"), [""])
sketch6.MapMode = "FlatFace"
sketch6.addGeometry(Part.Circle(Vector(-52.5, 62.5, 0), Vector(0, 0, 1), 2.1), False)
sketch6.addGeometry(Part.Circle(Vector(52.5, -42.5, 0), Vector(0, 0, 1), 2.1), False)
sketch6.addGeometry(Part.Circle(Vector(0, 10, 0), Vector(0, 0, 1), 60), False)
sketch6.addGeometry(Part.Circle(Vector(-52.5, -42.5, 0), Vector(0, 0, 1), 2.1), False)
sketch6.addGeometry(Part.Circle(Vector(52.5, 62.5, 0), Vector(0, 0, 1), 2.1), False)
sketch6.addConstraint(Sketcher.Constraint("Equal", 0, 1))
sketch6.addConstraint(Sketcher.Constraint("Equal", 1, 3))
sketch6.addConstraint(Sketcher.Constraint("Equal", 3, 4))
sketch6.addConstraint(Sketcher.Constraint("Symmetric", 1, 3, 3, 3, -2))
sketch6.addConstraint(Sketcher.Constraint("Symmetric", 0, 3, 4, 3, -2))
sketch6.addConstraint(Sketcher.Constraint("PointOnObject", 2, 3, -2))
sketch6.addConstraint(Sketcher.Constraint("Vertical", 0, 3, 3, 3))
sketch6.addConstraint(Sketcher.Constraint("Diameter", 2, Q("120 mm")))
sketch6.addConstraint(Sketcher.Constraint("Diameter", 0, Q("4.3 mm")))
sketch6.addConstraint(Sketcher.Constraint("DistanceY", -1, 1, 2, 3, Q("10 mm")))
sketch6.addConstraint(Sketcher.Constraint("DistanceX", 0, 3, 1, 3, Q("105 mm")))
sketch6.addConstraint(Sketcher.Constraint("DistanceY", 1, 3, 0, 3, Q("105 mm")))
sketch6.addConstraint(Sketcher.Constraint("DistanceY", -1, 1, 0, 3, Q("62.5 mm")))
pocket4 = body.newObject("PartDesign::Pocket", "Pocket003")
pocket4.Profile = sketch6
pocket4.Type = "ThroughAll"

sketch7 = body.newObject("Sketcher::SketchObject", "Sketch006")
sketch7.AttachmentSupport = (doc.getObject("XZ_Plane"), [""])
sketch7.MapMode = "FlatFace"
sketch7.addGeometry(Part.Circle(Vector(56, -68, 0), Vector(0, 0, 1), 10), False)
sketch7.addConstraint(Sketcher.Constraint("Diameter", 0, Q("19 mm")))
sketch7.addConstraint(Sketcher.Constraint("DistanceX", -1, 1, 0, 3, Q("55.5 mm")))
sketch7.addConstraint(Sketcher.Constraint("DistanceY", 0, 3, -1, 1, Q("67.5 mm")))
pocket5 = body.newObject("PartDesign::Pocket", "Pocket004")
pocket5.Profile = sketch7
pocket5.Type = "ThroughAll"

sketch8 = body.newObject("Sketcher::SketchObject", "Sketch007")
sketch8.AttachmentSupport = (doc.getObject("XZ_Plane"), [""])
sketch8.MapMode = "FlatFace"
sketch8.addGeometry(Part.Circle(Vector(-78, -67.5, 0), Vector(0, 0, 1), 1.5), False)
sketch8.addGeometry(Part.Circle(Vector(-49, -67.5, 0), Vector(0, 0, 1), 1.5), False)
sketch8.addGeometry(Part.Circle(Vector(-38, -67.5, 0), Vector(0, 0, 1), 1.5), False)
sketch8.addGeometry(Part.Circle(Vector(-9, -67.5, 0), Vector(0, 0, 1), 1.5), False)
sketch8.addGeometry(Part.LineSegment(Vector(-70.2, -70.8, 0), Vector(-70.2, -64.2, 0)), False)
sketch8.addGeometry(Part.LineSegment(Vector(-70.2, -64.2, 0), Vector(-56.8, -64.2, 0)), False)
sketch8.addGeometry(Part.LineSegment(Vector(-56.8, -64.2, 0), Vector(-56.8, -70.8, 0)), False)
sketch8.addGeometry(Part.LineSegment(Vector(-56.8, -70.8, 0), Vector(-70.2, -70.8, 0)), False)
sketch8.addGeometry(Part.LineSegment(Vector(-30.2, -70.8, 0), Vector(-30.2, -64.2, 0)), False)
sketch8.addGeometry(Part.LineSegment(Vector(-30.2, -64.2, 0), Vector(-16.8, -64.2, 0)), False)
sketch8.addGeometry(Part.LineSegment(Vector(-16.8, -64.2, 0), Vector(-16.8, -70.8, 0)), False)
sketch8.addGeometry(Part.LineSegment(Vector(-16.8, -70.8, 0), Vector(-30.2, -70.8, 0)), False)
sketch8.addConstraint(Sketcher.Constraint("Coincident", 4, 2, 5, 1))
sketch8.addConstraint(Sketcher.Constraint("Coincident", 5, 2, 6, 1))
sketch8.addConstraint(Sketcher.Constraint("Coincident", 6, 2, 7, 1))
sketch8.addConstraint(Sketcher.Constraint("Coincident", 7, 2, 4, 1))
sketch8.addConstraint(Sketcher.Constraint("Coincident", 8, 2, 9, 1))
sketch8.addConstraint(Sketcher.Constraint("Coincident", 9, 2, 10, 1))
sketch8.addConstraint(Sketcher.Constraint("Coincident", 10, 2, 11, 1))
sketch8.addConstraint(Sketcher.Constraint("Coincident", 11, 2, 8, 1))
sketch8.addConstraint(Sketcher.Constraint("Vertical", 4))
sketch8.addConstraint(Sketcher.Constraint("Horizontal", 5))
sketch8.addConstraint(Sketcher.Constraint("Vertical", 6))
sketch8.addConstraint(Sketcher.Constraint("Horizontal", 7))
sketch8.addConstraint(Sketcher.Constraint("Vertical", 8))
sketch8.addConstraint(Sketcher.Constraint("Horizontal", 9))
sketch8.addConstraint(Sketcher.Constraint("Vertical", 10))
sketch8.addConstraint(Sketcher.Constraint("Horizontal", 11))
sketch8.addConstraint(Sketcher.Constraint("Equal", 0, 1))
sketch8.addConstraint(Sketcher.Constraint("Equal", 1, 2))
sketch8.addConstraint(Sketcher.Constraint("Equal", 2, 3))
sketch8.addConstraint(Sketcher.Constraint("Horizontal", 0, 3, 1, 3))
sketch8.addConstraint(Sketcher.Constraint("Horizontal", 1, 3, 2, 3))
sketch8.addConstraint(Sketcher.Constraint("Horizontal", 2, 3, 3, 3))
sketch8.addConstraint(Sketcher.Constraint("Horizontal", 5, 2, 8, 2))
sketch8.addConstraint(Sketcher.Constraint("Horizontal", 7, 2, 10, 2))
sketch8.addConstraint(Sketcher.Constraint("Equal", 7, 9))
sketch8.addConstraint(Sketcher.Constraint("Diameter", 0, Q("3 mm")))
sketch8.addConstraint(Sketcher.Constraint("DistanceX", 5, 1, 5, 2, Q("13.5 mm")))
sketch8.addConstraint(Sketcher.Constraint("DistanceY", 4, 1, 4, 2, Q("6.5 mm")))
sketch8.addConstraint(Sketcher.Constraint("DistanceX", 0, 3, -1, 1, Q("78 mm")))
sketch8.addConstraint(Sketcher.Constraint("DistanceX", 1, 3, -1, 1, Q("49 mm")))
sketch8.addConstraint(Sketcher.Constraint("DistanceX", 2, 3, -1, 1, Q("38 mm")))
sketch8.addConstraint(Sketcher.Constraint("DistanceX", 3, 3, -1, 1, Q("9 mm")))
sketch8.addConstraint(Sketcher.Constraint("DistanceX", 5, 2, 9, 2, Q("40 mm")))
sketch8.addConstraint(Sketcher.Constraint("DistanceY", 0, 3, -1, 1, Q("67.5 mm")))
sketch8.addConstraint(Sketcher.Constraint("DistanceX", 4, 2, -1, 1, Q("70.25 mm")))
sketch8.addConstraint(Sketcher.Constraint("DistanceY", 4, 2, -1, 1, Q("64.25 mm")))
pocket6 = body.newObject("PartDesign::Pocket", "Pocket005")
pocket6.Profile = sketch8
pocket6.Type = "ThroughAll"

doc.recompute()
